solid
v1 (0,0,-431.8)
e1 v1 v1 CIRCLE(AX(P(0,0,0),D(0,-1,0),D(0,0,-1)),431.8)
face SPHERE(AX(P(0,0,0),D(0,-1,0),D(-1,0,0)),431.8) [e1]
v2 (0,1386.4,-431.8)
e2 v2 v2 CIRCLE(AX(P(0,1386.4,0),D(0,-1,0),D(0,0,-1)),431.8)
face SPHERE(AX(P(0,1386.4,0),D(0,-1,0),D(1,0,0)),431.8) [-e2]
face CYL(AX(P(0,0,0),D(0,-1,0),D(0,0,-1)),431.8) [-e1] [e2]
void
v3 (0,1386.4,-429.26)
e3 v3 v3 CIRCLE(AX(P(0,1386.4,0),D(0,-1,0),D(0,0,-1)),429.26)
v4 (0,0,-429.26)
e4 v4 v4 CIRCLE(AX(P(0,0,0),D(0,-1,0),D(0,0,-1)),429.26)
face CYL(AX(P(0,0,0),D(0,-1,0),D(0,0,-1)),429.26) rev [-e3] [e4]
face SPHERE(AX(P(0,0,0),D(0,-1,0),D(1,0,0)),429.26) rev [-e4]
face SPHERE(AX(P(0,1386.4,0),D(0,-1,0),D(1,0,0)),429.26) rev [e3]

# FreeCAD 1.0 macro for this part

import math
import FreeCAD as App
import Part
import Sketcher
from FreeCAD import Vector
Q = App.Units.Quantity

doc = App.newDocument("Part")
body = doc.addObject("PartDesign::Body", "Body")

sketch1 = doc.addObject("Sketcher::SketchObject", "Sketch")
body.addObject(sketch1)
sketch1.AttachmentSupport = (doc.XY_Plane, [""])
sketch1.MapMode = "FlatFace"
sketch1.addGeometry(Part.LineSegment(Vector(0, 1818.2, 0), Vector(0, 1815.66, 0)), False)
sketch1.addGeometry(Part.ArcOfCircle(Part.Circle(Vector(0, 1386.4, 0), Vector(0, 0, 1), 429.26), math.radians(0), math.radians(90)), False)
sketch1.addGeometry(Part.LineSegment(Vector(429.26, 1386.4, 0), Vector(429.26, 0, 0)), False)
sketch1.addGeometry(Part.ArcOfCircle(Part.Circle(Vector(0, 0, 0), Vector(0, 0, 1), 429.26), math.radians(-90), math.radians(0)), False)
sketch1.addGeometry(Part.LineSegment(Vector(0, -429.26, 0), Vector(0, -431.8, 0)), False)
sketch1.addGeometry(Part.ArcOfCircle(Part.Circle(Vector(0, 0, 0), Vector(0, 0, 1), 431.8), math.radians(-90), math.radians(0)), False)
sketch1.addGeometry(Part.LineSegment(Vector(431.8, 0, 0), Vector(431.8, 1386.4, 0)), False)
sketch1.addGeometry(Part.ArcOfCircle(Part.Circle(Vector(0, 1386.4, 0), Vector(0, 0, 1), 431.8), math.radians(0), math.radians(90)), False)
sketch1.addConstraint(Sketcher.Constraint("Coincident", 0, 2, 1, 2))
sketch1.addConstraint(Sketcher.Constraint("Tangent", 1, 1, 2, 1))
sketch1.addConstraint(Sketcher.Constraint("Tangent", 2, 2, 3, 2))
sketch1.addConstraint(Sketcher.Constraint("Coincident", 3, 1, 4, 1))
sketch1.addConstraint(Sketcher.Constraint("Coincident", 4, 2, 5, 1))
sketch1.addConstraint(Sketcher.Constraint("Tangent", 5, 2, 6, 1))
sketch1.addConstraint(Sketcher.Constraint("Tangent", 6, 2, 7, 1))
sketch1.addConstraint(Sketcher.Constraint("Coincident", 7, 2, 0, 1))
sketch1.addConstraint(Sketcher.Constraint("Vertical", 0))
sketch1.addConstraint(Sketcher.Constraint("Vertical", 2))
sketch1.addConstraint(Sketcher.Constraint("Vertical", 4))
sketch1.addConstraint(Sketcher.Constraint("Vertical", 6))
sketch1.addConstraint(Sketcher.Constraint("Coincident", 3, 3, -1, 1))
sketch1.addConstraint(Sketcher.Constraint("Coincident", 5, 3, -1, 1))
sketch1.addConstraint(Sketcher.Constraint("Coincident", 7, 3, 1, 3))
sketch1.addConstraint(Sketcher.Constraint("Equal", 1, 3))
sketch1.addConstraint(Sketcher.Constraint("PointOnObject", 0, 2, -2))
sketch1.addConstraint(Sketcher.Constraint("PointOnObject", 4, 2, -2))
sketch1.addConstraint(Sketcher.Constraint("Radius", 5, Q("17 in")))
sketch1.addConstraint(Sketcher.Constraint("Radius", 1, Q("16.9 in")))
sketch1.addConstraint(Sketcher.Constraint("DistanceY", 2, 2, 2, 1, Q("1386.4 mm")))
revolution = doc.addObject("PartDesign::Revolution", "Revolution")
body.addObject(revolution)
revolution.Profile = sketch1
revolution.ReferenceAxis = (sketch1, ["V_Axis"])
revolution.Angle = 360

doc.recompute()
